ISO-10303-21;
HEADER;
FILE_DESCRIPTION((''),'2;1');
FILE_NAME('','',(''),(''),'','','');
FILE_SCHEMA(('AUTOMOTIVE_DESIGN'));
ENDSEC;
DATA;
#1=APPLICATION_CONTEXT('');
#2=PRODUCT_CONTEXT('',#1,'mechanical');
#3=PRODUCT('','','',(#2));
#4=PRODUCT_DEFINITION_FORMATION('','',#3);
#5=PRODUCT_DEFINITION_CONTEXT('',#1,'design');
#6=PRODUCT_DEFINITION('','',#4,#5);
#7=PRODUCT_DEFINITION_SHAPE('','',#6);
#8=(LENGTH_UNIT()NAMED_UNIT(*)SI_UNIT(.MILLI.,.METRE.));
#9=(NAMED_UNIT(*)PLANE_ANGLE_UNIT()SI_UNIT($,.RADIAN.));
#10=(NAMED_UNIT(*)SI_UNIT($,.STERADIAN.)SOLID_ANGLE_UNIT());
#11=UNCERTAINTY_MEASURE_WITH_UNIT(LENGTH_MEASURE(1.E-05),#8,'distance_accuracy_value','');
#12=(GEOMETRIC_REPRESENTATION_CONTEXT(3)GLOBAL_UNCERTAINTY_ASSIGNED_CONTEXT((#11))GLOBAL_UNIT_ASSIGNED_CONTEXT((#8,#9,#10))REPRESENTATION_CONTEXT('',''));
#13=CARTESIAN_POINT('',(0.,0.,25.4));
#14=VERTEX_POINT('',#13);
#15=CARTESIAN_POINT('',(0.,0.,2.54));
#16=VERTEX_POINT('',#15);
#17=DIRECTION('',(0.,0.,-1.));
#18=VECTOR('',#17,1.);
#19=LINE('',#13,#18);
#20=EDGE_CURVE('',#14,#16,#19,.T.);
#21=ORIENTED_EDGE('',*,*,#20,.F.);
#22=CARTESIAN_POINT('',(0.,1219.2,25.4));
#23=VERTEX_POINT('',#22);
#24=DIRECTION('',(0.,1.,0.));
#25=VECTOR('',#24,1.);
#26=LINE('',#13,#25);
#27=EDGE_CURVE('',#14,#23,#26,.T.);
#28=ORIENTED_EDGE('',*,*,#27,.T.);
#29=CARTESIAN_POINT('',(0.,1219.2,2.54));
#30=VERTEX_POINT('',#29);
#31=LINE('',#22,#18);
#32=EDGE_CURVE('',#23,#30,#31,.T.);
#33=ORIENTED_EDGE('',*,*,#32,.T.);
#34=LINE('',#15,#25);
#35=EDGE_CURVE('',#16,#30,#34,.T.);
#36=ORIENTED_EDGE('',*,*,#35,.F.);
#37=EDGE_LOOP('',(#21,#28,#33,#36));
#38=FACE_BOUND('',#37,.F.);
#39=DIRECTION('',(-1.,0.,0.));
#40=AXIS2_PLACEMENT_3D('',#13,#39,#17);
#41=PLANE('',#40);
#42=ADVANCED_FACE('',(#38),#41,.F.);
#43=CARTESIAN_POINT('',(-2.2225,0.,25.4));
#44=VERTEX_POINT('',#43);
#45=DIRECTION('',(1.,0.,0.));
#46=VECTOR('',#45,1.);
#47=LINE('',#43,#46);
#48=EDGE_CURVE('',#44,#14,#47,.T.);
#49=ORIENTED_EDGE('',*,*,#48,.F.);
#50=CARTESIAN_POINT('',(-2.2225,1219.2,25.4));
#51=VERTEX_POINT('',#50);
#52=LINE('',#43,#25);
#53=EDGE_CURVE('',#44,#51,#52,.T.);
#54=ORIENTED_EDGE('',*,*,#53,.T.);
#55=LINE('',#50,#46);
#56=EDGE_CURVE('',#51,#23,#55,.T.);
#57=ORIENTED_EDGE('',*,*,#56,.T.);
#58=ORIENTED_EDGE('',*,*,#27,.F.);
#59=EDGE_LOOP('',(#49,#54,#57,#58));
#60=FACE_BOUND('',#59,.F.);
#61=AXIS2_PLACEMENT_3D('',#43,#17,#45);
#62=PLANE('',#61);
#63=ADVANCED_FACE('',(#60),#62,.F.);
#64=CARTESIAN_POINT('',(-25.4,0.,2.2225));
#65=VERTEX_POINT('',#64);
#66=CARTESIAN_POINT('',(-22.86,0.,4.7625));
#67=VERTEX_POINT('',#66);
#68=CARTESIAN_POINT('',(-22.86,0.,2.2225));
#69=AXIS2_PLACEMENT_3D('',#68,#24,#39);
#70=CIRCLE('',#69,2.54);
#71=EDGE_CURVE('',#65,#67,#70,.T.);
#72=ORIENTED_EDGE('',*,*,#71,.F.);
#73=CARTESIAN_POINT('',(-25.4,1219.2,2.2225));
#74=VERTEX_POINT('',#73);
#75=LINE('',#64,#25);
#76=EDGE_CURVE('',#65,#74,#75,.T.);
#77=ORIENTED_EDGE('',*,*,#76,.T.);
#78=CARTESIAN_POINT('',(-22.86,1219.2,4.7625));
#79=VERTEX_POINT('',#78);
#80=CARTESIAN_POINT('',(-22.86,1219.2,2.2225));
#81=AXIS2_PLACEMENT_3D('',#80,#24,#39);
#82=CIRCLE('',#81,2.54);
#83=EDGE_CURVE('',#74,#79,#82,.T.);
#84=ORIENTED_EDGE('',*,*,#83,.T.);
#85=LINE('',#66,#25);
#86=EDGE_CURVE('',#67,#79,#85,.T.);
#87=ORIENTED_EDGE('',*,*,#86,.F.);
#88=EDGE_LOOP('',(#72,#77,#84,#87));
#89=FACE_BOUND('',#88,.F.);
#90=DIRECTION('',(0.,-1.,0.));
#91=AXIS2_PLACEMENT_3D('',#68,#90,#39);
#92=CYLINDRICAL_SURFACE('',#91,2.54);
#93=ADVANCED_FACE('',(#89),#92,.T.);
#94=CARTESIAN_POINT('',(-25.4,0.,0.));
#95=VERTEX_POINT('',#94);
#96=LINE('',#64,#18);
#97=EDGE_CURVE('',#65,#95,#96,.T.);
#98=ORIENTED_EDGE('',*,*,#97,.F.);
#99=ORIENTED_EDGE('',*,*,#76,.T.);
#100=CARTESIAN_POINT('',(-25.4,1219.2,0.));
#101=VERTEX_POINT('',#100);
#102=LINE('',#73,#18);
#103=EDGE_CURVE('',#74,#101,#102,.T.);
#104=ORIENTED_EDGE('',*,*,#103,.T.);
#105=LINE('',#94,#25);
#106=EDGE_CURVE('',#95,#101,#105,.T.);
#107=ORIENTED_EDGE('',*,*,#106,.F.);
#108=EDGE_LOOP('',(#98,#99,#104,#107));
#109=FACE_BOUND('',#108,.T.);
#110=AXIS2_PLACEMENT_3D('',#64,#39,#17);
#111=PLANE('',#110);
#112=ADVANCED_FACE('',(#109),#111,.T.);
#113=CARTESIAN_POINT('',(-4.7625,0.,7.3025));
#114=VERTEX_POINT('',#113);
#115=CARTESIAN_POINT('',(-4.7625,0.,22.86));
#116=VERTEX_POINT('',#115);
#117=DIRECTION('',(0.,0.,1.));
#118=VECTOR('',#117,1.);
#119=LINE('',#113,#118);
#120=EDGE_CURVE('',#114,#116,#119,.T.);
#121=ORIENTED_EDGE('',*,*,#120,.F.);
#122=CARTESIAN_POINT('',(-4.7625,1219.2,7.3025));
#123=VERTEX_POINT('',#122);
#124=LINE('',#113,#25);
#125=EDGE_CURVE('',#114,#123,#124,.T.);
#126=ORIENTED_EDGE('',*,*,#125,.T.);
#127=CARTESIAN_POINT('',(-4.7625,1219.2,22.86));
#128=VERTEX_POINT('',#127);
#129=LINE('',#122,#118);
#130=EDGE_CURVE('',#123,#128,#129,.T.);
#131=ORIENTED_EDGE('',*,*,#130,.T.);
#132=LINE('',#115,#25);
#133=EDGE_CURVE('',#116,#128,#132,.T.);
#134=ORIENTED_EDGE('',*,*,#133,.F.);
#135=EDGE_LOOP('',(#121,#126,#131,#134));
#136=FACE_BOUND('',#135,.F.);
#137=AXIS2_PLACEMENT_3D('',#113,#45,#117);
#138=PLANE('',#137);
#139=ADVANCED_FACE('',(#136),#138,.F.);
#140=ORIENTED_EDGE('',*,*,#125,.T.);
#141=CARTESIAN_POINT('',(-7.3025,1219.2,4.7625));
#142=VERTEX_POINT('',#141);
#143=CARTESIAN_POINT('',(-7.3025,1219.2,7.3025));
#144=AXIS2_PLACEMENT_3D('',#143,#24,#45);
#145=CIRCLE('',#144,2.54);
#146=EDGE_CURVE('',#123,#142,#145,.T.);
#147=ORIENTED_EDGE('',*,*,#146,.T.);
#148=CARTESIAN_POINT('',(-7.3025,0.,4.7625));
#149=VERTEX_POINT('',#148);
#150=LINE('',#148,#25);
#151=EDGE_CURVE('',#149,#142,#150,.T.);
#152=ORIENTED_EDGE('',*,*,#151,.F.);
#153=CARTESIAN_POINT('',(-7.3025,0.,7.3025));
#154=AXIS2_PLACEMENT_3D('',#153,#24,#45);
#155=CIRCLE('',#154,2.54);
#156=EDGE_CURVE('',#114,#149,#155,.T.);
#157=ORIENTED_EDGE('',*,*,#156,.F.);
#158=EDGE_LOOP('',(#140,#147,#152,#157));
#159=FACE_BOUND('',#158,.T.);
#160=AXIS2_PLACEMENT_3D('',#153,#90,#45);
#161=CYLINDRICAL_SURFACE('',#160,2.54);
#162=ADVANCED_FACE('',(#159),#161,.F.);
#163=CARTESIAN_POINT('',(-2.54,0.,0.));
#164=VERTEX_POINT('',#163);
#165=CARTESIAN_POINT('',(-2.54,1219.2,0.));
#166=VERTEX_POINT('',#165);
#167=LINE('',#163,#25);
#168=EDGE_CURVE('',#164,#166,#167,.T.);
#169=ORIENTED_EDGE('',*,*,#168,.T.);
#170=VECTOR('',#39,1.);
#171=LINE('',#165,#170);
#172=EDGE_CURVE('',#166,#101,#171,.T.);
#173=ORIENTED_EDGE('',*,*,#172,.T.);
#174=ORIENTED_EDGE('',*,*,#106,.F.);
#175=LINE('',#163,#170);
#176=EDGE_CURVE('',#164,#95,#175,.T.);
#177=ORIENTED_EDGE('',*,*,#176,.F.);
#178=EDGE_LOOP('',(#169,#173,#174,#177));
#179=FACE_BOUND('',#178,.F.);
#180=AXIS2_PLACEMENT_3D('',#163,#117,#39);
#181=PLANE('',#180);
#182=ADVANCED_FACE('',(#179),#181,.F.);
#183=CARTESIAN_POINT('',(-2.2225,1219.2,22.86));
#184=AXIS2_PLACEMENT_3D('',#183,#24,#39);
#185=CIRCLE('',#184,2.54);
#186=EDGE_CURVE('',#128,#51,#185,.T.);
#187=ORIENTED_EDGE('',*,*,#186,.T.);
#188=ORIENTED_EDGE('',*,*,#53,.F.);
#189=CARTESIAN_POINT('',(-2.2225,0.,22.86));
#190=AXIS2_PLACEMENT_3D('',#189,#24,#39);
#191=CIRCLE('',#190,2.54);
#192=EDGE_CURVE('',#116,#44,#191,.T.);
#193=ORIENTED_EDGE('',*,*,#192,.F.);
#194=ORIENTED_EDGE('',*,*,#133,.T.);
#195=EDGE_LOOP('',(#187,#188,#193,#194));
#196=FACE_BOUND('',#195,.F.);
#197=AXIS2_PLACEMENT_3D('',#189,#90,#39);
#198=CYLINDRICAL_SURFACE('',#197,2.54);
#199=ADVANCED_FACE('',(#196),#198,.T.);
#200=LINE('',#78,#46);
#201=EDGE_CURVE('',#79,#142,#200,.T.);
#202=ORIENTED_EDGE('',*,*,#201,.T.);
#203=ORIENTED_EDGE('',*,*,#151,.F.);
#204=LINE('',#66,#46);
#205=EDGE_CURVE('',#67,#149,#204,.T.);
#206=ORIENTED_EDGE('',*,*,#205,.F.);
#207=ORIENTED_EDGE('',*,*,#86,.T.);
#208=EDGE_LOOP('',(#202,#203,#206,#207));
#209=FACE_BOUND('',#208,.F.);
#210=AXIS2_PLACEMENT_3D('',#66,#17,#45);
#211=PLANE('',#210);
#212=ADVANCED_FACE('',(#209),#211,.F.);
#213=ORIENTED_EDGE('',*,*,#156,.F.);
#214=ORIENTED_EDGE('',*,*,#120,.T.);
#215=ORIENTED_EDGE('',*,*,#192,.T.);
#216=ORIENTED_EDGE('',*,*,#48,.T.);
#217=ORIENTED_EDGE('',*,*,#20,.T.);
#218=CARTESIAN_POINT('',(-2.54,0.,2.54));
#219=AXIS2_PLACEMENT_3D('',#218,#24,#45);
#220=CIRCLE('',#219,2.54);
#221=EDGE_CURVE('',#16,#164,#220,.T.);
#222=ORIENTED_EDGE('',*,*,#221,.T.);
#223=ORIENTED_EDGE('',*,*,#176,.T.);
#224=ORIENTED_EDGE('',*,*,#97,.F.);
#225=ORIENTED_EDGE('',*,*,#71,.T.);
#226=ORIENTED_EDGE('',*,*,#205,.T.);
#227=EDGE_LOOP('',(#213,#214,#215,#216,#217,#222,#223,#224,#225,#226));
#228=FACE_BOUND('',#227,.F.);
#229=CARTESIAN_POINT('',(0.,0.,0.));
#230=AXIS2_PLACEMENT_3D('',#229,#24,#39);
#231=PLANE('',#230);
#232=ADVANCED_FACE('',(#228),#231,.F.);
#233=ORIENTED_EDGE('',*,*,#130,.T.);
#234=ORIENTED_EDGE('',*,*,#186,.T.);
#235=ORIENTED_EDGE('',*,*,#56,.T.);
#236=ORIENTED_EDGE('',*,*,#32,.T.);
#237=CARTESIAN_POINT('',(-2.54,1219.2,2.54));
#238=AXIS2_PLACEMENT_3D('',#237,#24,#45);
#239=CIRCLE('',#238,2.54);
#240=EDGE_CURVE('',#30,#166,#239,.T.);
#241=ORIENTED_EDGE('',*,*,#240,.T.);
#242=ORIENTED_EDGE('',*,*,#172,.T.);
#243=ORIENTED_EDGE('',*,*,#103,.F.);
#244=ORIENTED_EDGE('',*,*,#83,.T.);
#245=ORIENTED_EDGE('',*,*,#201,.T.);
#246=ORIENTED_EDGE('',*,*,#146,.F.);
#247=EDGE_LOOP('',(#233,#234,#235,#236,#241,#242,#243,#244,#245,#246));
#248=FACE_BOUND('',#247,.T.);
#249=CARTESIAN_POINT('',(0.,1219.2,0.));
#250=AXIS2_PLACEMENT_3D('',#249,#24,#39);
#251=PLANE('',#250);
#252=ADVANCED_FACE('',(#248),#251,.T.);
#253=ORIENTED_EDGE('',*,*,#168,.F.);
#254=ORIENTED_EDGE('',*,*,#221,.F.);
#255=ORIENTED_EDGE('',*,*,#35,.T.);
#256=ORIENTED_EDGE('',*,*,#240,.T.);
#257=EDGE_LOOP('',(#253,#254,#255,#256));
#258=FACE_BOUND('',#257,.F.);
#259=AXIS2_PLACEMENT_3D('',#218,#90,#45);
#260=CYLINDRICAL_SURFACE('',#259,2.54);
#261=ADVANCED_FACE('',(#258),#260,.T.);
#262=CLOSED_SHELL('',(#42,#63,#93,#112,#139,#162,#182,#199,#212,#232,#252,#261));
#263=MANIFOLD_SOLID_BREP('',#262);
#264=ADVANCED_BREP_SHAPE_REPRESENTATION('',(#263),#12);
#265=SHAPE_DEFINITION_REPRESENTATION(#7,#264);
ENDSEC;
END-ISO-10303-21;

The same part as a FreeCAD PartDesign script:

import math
import FreeCAD as App
import Part
import Sketcher

V = App.Vector
Q = App.Units.Quantity

doc = App.newDocument("Part")
params = doc.addObject("Spreadsheet::Sheet", "Params")
for row, (alias, value) in enumerate([
    ("sketch1_radius", "0.1 in"),
    ("pad1_length", "48 in"),
], start=1):
    params.set(f"A{row}", alias)
    params.set(f"B{row}", "=" + value)
    params.setAlias(f"B{row}", alias)

body = doc.addObject("PartDesign::Body", "Body")

# Sketch on XZ plane
sketch1 = body.newObject("Sketcher::SketchObject", "Sketch")
sketch1.AttachmentSupport = (doc.getObject("XZ_Plane"), [""])
sketch1.MapMode = "FlatFace"
sketch1.addGeometry(Part.ArcOfCircle(Part.Circle(V(-2.5, 2.5, 0), V(0, 0, 1), 2.5), math.radians(-90), math.radians(0)), False)
sketch1.addGeometry(Part.LineSegment(V(-2.5, 0, 0), V(-25.4, 0, 0)), False)
sketch1.addGeometry(Part.LineSegment(V(-25.4, 0, 0), V(-25.4, 2.2, 0)), False)
sketch1.addGeometry(Part.ArcOfCircle(Part.Circle(V(-22.9, 2.2, 0), V(0, 0, 1), 2.5), math.radians(90), math.radians(180)), False)
sketch1.addGeometry(Part.LineSegment(V(-22.9, 4.8, 0), V(-7.3, 4.8, 0)), False)
sketch1.addGeometry(Part.ArcOfCircle(Part.Circle(V(-7.3, 7.3, 0), V(0, 0, 1), 2.5), math.radians(-90), math.radians(0)), False)
sketch1.addGeometry(Part.LineSegment(V(-4.8, 7.3, 0), V(-4.8, 22.9, 0)), False)
sketch1.addGeometry(Part.ArcOfCircle(Part.Circle(V(-2.2, 22.9, 0), V(0, 0, 1), 2.5), math.radians(90), math.radians(180)), False)
sketch1.addGeometry(Part.LineSegment(V(-2.2, 25.4, 0), V(0, 25.4, 0)), False)
sketch1.addGeometry(Part.LineSegment(V(0, 25.4, 0), V(0, 2.5, 0)), False)
sketch1.addConstraint(Sketcher.Constraint("Tangent", 0, 1, 1, 1))
sketch1.addConstraint(Sketcher.Constraint("Coincident", 1, 2, 2, 1))
sketch1.addConstraint(Sketcher.Constraint("Tangent", 2, 2, 3, 2))
sketch1.addConstraint(Sketcher.Constraint("Tangent", 3, 1, 4, 1))
sketch1.addConstraint(Sketcher.Constraint("Tangent", 4, 2, 5, 1))
sketch1.addConstraint(Sketcher.Constraint("Tangent", 5, 2, 6, 1))
sketch1.addConstraint(Sketcher.Constraint("Tangent", 6, 2, 7, 2))
sketch1.addConstraint(Sketcher.Constraint("Tangent", 7, 1, 8, 1))
sketch1.addConstraint(Sketcher.Constraint("Coincident", 8, 2, 9, 1))
sketch1.addConstraint(Sketcher.Constraint("Tangent", 9, 2, 0, 2))
sketch1.addConstraint(Sketcher.Constraint("Horizontal", 1))
sketch1.addConstraint(Sketcher.Constraint("Vertical", 2))
sketch1.addConstraint(Sketcher.Constraint("Horizontal", 4))
sketch1.addConstraint(Sketcher.Constraint("Vertical", 6))
sketch1.addConstraint(Sketcher.Constraint("Horizontal", 8))
sketch1.addConstraint(Sketcher.Constraint("Vertical", 9))
sketch1.addConstraint(Sketcher.Constraint("Equal", 0, 3))
sketch1.addConstraint(Sketcher.Constraint("Equal", 3, 5))
sketch1.addConstraint(Sketcher.Constraint("Equal", 5, 7))
sketch1.addConstraint(Sketcher.Constraint("PointOnObject", 0, 1, -1))
sketch1.addConstraint(Sketcher.Constraint("PointOnObject", 8, 2, -2))
sketch1.addConstraint(Sketcher.Constraint("Equal", 8, 2))
sketch1.addConstraint(Sketcher.Constraint("Equal", 4, 6))
sketch1.addConstraint(Sketcher.Constraint("Radius", 0, Q("0.1 in")))
sketch1.addConstraint(Sketcher.Constraint("DistanceX", 1, 2, -1, 1, Q("1 in")))
sketch1.addConstraint(Sketcher.Constraint("DistanceY", -1, 1, 3, 1, Q("0.1875 in")))
sketch1.setExpression("Constraints[23]", "Params.sketch1_radius")
pad1 = body.newObject("PartDesign::Pad", "Pad")
pad1.Profile = sketch1
pad1.setExpression("Length", "Params.pad1_length")
pad1.Reversed = True

doc.recompute()
